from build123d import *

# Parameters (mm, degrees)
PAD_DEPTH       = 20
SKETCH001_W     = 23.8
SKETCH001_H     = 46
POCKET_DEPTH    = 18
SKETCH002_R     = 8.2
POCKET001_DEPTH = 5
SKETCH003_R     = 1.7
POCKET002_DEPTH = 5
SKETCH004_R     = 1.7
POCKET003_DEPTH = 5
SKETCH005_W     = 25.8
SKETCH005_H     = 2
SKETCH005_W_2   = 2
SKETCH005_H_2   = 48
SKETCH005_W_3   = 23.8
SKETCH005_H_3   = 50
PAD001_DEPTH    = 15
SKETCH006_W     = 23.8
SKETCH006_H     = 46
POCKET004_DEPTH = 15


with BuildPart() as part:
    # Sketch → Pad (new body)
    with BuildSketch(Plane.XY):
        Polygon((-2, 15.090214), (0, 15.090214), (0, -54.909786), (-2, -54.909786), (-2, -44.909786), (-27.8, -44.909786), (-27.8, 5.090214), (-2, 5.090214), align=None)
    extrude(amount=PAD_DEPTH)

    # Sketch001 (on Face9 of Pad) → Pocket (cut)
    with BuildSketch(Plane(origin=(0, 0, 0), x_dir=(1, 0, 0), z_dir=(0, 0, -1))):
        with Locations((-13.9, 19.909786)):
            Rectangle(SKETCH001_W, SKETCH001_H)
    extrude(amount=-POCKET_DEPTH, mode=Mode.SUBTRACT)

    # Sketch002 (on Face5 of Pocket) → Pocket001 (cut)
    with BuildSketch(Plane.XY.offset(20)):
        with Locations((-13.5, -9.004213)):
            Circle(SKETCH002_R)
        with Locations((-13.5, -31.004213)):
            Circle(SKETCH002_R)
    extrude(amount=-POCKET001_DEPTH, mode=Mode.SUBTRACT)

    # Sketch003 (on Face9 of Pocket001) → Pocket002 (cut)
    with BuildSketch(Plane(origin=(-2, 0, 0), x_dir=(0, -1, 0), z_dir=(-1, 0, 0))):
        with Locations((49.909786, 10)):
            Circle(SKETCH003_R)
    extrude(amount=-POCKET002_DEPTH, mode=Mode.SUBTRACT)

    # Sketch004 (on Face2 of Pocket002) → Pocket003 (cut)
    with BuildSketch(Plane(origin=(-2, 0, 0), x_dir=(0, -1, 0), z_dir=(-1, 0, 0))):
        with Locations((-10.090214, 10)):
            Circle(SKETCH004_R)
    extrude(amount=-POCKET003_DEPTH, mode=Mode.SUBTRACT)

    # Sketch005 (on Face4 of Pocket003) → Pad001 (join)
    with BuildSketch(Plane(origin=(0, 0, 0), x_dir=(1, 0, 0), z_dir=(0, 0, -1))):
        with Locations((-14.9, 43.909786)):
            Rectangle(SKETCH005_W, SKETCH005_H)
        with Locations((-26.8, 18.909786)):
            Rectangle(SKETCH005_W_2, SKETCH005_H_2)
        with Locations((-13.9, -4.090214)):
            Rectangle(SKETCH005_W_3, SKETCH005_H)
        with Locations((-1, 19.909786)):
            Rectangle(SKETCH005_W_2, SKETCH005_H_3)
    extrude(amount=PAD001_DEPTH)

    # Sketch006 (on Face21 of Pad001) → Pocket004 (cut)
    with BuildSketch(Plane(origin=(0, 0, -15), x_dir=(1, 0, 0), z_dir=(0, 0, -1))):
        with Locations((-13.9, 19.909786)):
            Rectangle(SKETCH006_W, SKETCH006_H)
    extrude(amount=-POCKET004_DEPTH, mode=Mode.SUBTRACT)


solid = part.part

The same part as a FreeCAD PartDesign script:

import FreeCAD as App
import Part
import Sketcher
from FreeCAD import Vector
Q = App.Units.Quantity

doc = App.newDocument("Part")
body = doc.addObject("PartDesign::Body", "Body")

# Sketch on XY plane
sketch1 = body.newObject("Sketcher::SketchObject", "Sketch")
sketch1.AttachmentSupport = (doc.getObject("XY_Plane"), [""])
sketch1.MapMode = "FlatFace"
sketch1.addGeometry(Part.LineSegment(Vector(0, 15.1, 0), Vector(-2, 15.1, 0)), False)
sketch1.addGeometry(Part.LineSegment(Vector(-2, 15.1, 0), Vector(-2, 5.1, 0)), False)
sketch1.addGeometry(Part.LineSegment(Vector(-2, 5.1, 0), Vector(-27.8, 5.1, 0)), False)
sketch1.addGeometry(Part.LineSegment(Vector(-27.8, 5.1, 0), Vector(-27.8, -44.9, 0)), False)
sketch1.addGeometry(Part.LineSegment(Vector(-27.8, -44.9, 0), Vector(-2, -44.9, 0)), False)
sketch1.addGeometry(Part.LineSegment(Vector(-2, -44.9, 0), Vector(-2, -54.9, 0)), False)
sketch1.addGeometry(Part.LineSegment(Vector(-2, -54.9, 0), Vector(0, -54.9, 0)), False)
sketch1.addGeometry(Part.LineSegment(Vector(0, -54.9, 0), Vector(0, 15.1, 0)), False)
sketch1.addConstraint(Sketcher.Constraint("Coincident", 0, 2, 1, 1))
sketch1.addConstraint(Sketcher.Constraint("Coincident", 1, 2, 2, 1))
sketch1.addConstraint(Sketcher.Constraint("Coincident", 2, 2, 3, 1))
sketch1.addConstraint(Sketcher.Constraint("Coincident", 3, 2, 4, 1))
sketch1.addConstraint(Sketcher.Constraint("Coincident", 4, 2, 5, 1))
sketch1.addConstraint(Sketcher.Constraint("Coincident", 5, 2, 6, 1))
sketch1.addConstraint(Sketcher.Constraint("Coincident", 6, 2, 7, 1))
sketch1.addConstraint(Sketcher.Constraint("Coincident", 7, 2, 0, 1))
sketch1.addConstraint(Sketcher.Constraint("Horizontal", 0))
sketch1.addConstraint(Sketcher.Constraint("Vertical", 1))
sketch1.addConstraint(Sketcher.Constraint("Horizontal", 2))
sketch1.addConstraint(Sketcher.Constraint("Vertical", 3))
sketch1.addConstraint(Sketcher.Constraint("Horizontal", 4))
sketch1.addConstraint(Sketcher.Constraint("Vertical", 5))
sketch1.addConstraint(Sketcher.Constraint("Horizontal", 6))
sketch1.addConstraint(Sketcher.Constraint("Vertical", 7))
sketch1.addConstraint(Sketcher.Constraint("PointOnObject", 6, 2, -2))
sketch1.addConstraint(Sketcher.Constraint("Vertical", 1, 2, 4, 2))
sketch1.addConstraint(Sketcher.Constraint("Equal", 1, 5))
sketch1.addConstraint(Sketcher.Constraint("DistanceX", 0, 2, 0, 1, Q("2 mm")))
sketch1.addConstraint(Sketcher.Constraint("DistanceY", 1, 2, 1, 1, Q("10 mm")))
sketch1.addConstraint(Sketcher.Constraint("DistanceY", 3, 2, 3, 1, Q("50 mm")))
sketch1.addConstraint(Sketcher.Constraint("DistanceX", 2, 2, 2, 1, Q("25.8 mm")))
sketch1.addConstraint(Sketcher.Constraint("DistanceY", -1, 1, 0, 2, Q("15.090214 mm")))
pad1 = body.newObject("PartDesign::Pad", "Pad")
pad1.Profile = sketch1
pad1.Length = 20

# Sketch on XY plane
sketch2 = body.newObject("Sketcher::SketchObject", "Sketch001")
sketch2.AttachmentSupport = (doc.getObject("XY_Plane"), [""])
sketch2.MapMode = "FlatFace"
sketch2.addGeometry(Part.LineSegment(Vector(-26, -43, 0), Vector(-26, 3, 0)), False)
sketch2.addGeometry(Part.LineSegment(Vector(-26, 3, 0), Vector(-2, 3, 0)), False)
sketch2.addGeometry(Part.LineSegment(Vector(-2, 3, 0), Vector(-2, -43, 0)), False)
sketch2.addGeometry(Part.LineSegment(Vector(-2, -43, 0), Vector(-26, -43, 0)), False)
sketch2.addConstraint(Sketcher.Constraint("Coincident", 0, 2, 1, 1))
sketch2.addConstraint(Sketcher.Constraint("Coincident", 1, 2, 2, 1))
sketch2.addConstraint(Sketcher.Constraint("Coincident", 2, 2, 3, 1))
sketch2.addConstraint(Sketcher.Constraint("Coincident", 3, 2, 0, 1))
sketch2.addConstraint(Sketcher.Constraint("Vertical", 0))
sketch2.addConstraint(Sketcher.Constraint("Horizontal", 1))
sketch2.addConstraint(Sketcher.Constraint("Vertical", 2))
sketch2.addConstraint(Sketcher.Constraint("Horizontal", 3))
sketch2.addConstraint(Sketcher.Constraint("DistanceY", 0, 1, 0, 2, Q("46 mm")))
sketch2.addConstraint(Sketcher.Constraint("DistanceX", 1, 1, 1, 2, Q("23.8 mm")))
sketch2.addConstraint(Sketcher.Constraint("DistanceX", 1, 2, -1, 1, Q("2 mm")))
sketch2.addConstraint(Sketcher.Constraint("DistanceY", -1, 1, 0, 2, Q("3.090214 mm")))
pocket1 = body.newObject("PartDesign::Pocket", "Pocket")
pocket1.Profile = sketch2
pocket1.Length = 18
pocket1.Reversed = True

# Sketch on XY plane
sketch3 = body.newObject("Sketcher::SketchObject", "Sketch002")
sketch3.AttachmentSupport = (doc.getObject("XY_Plane"), [""])
sketch3.MapMode = "FlatFace"
sketch3.AttachmentOffset = App.Placement(Vector(0, 0, 20), App.Rotation())
sketch3.addGeometry(Part.Circle(Vector(-14, -9, 0), Vector(0, 0, 1), 8), False)
sketch3.addGeometry(Part.Circle(Vector(-14, -31, 0), Vector(0, 0, 1), 8), False)
sketch3.addConstraint(Sketcher.Constraint("Equal", 0, 1))
sketch3.addConstraint(Sketcher.Constraint("Vertical", 0, 3, 1, 3))
sketch3.addConstraint(Sketcher.Constraint("Diameter", 0, Q("16.4 mm")))
sketch3.addConstraint(Sketcher.Constraint("DistanceY", 1, 3, 0, 3, Q("22 mm")))
sketch3.addConstraint(Sketcher.Constraint("DistanceX", 0, 3, -1, 1, Q("13.5 mm")))
sketch3.addConstraint(Sketcher.Constraint("DistanceY", 0, 3, -1, 1, Q("9.004213 mm")))
pocket2 = body.newObject("PartDesign::Pocket", "Pocket001")
pocket2.Profile = sketch3
pocket2.Length = 5

# Sketch on YZ plane
sketch4 = body.newObject("Sketcher::SketchObject", "Sketch003")
sketch4.AttachmentSupport = (doc.getObject("YZ_Plane"), [""])
sketch4.MapMode = "FlatFace"
sketch4.AttachmentOffset = App.Placement(Vector(0, 0, -2), App.Rotation())
sketch4.addGeometry(Part.Circle(Vector(-49.9, 10, 0), Vector(0, 0, 1), 1.7), False)
sketch4.addConstraint(Sketcher.Constraint("Diameter", 0, Q("3.4 mm")))
sketch4.addConstraint(Sketcher.Constraint("DistanceY", -1, 1, 0, 3, Q("10 mm")))
sketch4.addConstraint(Sketcher.Constraint("DistanceX", 0, 3, -1, 1, Q("49.909786 mm")))
pocket3 = body.newObject("PartDesign::Pocket", "Pocket002")
pocket3.Profile = sketch4
pocket3.Length = 5
pocket3.Reversed = True

# Sketch on YZ plane
sketch5 = body.newObject("Sketcher::SketchObject", "Sketch004")
sketch5.AttachmentSupport = (doc.getObject("YZ_Plane"), [""])
sketch5.MapMode = "FlatFace"
sketch5.AttachmentOffset = App.Placement(Vector(0, 0, -2), App.Rotation())
sketch5.addGeometry(Part.Circle(Vector(10.1, 10, 0), Vector(0, 0, 1), 1.7), False)
sketch5.addConstraint(Sketcher.Constraint("Diameter", 0, Q("3.4 mm")))
sketch5.addConstraint(Sketcher.Constraint("DistanceY", -1, 1, 0, 3, Q("10 mm")))
sketch5.addConstraint(Sketcher.Constraint("DistanceX", -1, 1, 0, 3, Q("10.090214 mm")))
pocket4 = body.newObject("PartDesign::Pocket", "Pocket003")
pocket4.Profile = sketch5
pocket4.Length = 5
pocket4.Reversed = True

# Sketch on XY plane
sketch6 = body.newObject("Sketcher::SketchObject", "Sketch005")
sketch6.AttachmentSupport = (doc.getObject("XY_Plane"), [""])
sketch6.MapMode = "FlatFace"
sketch6.addGeometry(Part.LineSegment(Vector(-28, -45, 0), Vector(-28, 5, 0)), False)
sketch6.addGeometry(Part.LineSegment(Vector(-28, 5, 0), Vector(0, 5, 0)), False)
sketch6.addGeometry(Part.LineSegment(Vector(0, 5, 0), Vector(0, -45, 0)), False)
sketch6.addGeometry(Part.LineSegment(Vector(0, -45, 0), Vector(-28, -45, 0)), False)
sketch6.addGeometry(Part.LineSegment(Vector(-2, 3, 0), Vector(-26, 3, 0)), False)
sketch6.addGeometry(Part.LineSegment(Vector(-26, 3, 0), Vector(-26, -43, 0)), False)
sketch6.addGeometry(Part.LineSegment(Vector(-26, -43, 0), Vector(-2, -43, 0)), False)
sketch6.addGeometry(Part.LineSegment(Vector(-2, -43, 0), Vector(-2, 3, 0)), False)
sketch6.addConstraint(Sketcher.Constraint("Coincident", 0, 2, 1, 1))
sketch6.addConstraint(Sketcher.Constraint("Coincident", 1, 2, 2, 1))
sketch6.addConstraint(Sketcher.Constraint("Coincident", 2, 2, 3, 1))
sketch6.addConstraint(Sketcher.Constraint("Coincident", 3, 2, 0, 1))
sketch6.addConstraint(Sketcher.Constraint("Coincident", 4, 2, 5, 1))
sketch6.addConstraint(Sketcher.Constraint("Coincident", 5, 2, 6, 1))
sketch6.addConstraint(Sketcher.Constraint("Coincident", 6, 2, 7, 1))
sketch6.addConstraint(Sketcher.Constraint("Coincident", 7, 2, 4, 1))
sketch6.addConstraint(Sketcher.Constraint("Vertical", 0))
sketch6.addConstraint(Sketcher.Constraint("Horizontal", 1))
sketch6.addConstraint(Sketcher.Constraint("Vertical", 2))
sketch6.addConstraint(Sketcher.Constraint("Horizontal", 3))
sketch6.addConstraint(Sketcher.Constraint("Horizontal", 4))
sketch6.addConstraint(Sketcher.Constraint("Vertical", 5))
sketch6.addConstraint(Sketcher.Constraint("Horizontal", 6))
sketch6.addConstraint(Sketcher.Constraint("Vertical", 7))
sketch6.addConstraint(Sketcher.Constraint("PointOnObject", 1, 2, -2))
sketch6.addConstraint(Sketcher.Constraint("DistanceY", 0, 1, 0, 2, Q("50 mm")))
sketch6.addConstraint(Sketcher.Constraint("DistanceY", 5, 2, 5, 1, Q("46 mm")))
sketch6.addConstraint(Sketcher.Constraint("DistanceX", 1, 1, 1, 2, Q("27.8 mm")))
sketch6.addConstraint(Sketcher.Constraint("DistanceX", 4, 2, 4, 1, Q("23.8 mm")))
sketch6.addConstraint(Sketcher.Constraint("DistanceX", 6, 2, -1, 1, Q("2 mm")))
sketch6.addConstraint(Sketcher.Constraint("DistanceY", 4, 2, 0, 2, Q("2 mm")))
sketch6.addConstraint(Sketcher.Constraint("DistanceY", -1, 1, 0, 2, Q("5.090214 mm")))
pad2 = body.newObject("PartDesign::Pad", "Pad001")
pad2.Profile = sketch6
pad2.Length = 15
pad2.Reversed = True

# Sketch on XY plane
sketch7 = body.newObject("Sketcher::SketchObject", "Sketch006")
sketch7.AttachmentSupport = (doc.getObject("XY_Plane"), [""])
sketch7.MapMode = "FlatFace"
sketch7.AttachmentOffset = App.Placement(Vector(0, 0, -15), App.Rotation())
sketch7.addGeometry(Part.LineSegment(Vector(-26, -43, 0), Vector(-26, 3, 0)), False)
sketch7.addGeometry(Part.LineSegment(Vector(-26, 3, 0), Vector(-2, 3, 0)), False)
sketch7.addGeometry(Part.LineSegment(Vector(-2, 3, 0), Vector(-2, -43, 0)), False)
sketch7.addGeometry(Part.LineSegment(Vector(-2, -43, 0), Vector(-26, -43, 0)), False)
sketch7.addConstraint(Sketcher.Constraint("Coincident", 0, 2, 1, 1))
sketch7.addConstraint(Sketcher.Constraint("Coincident", 1, 2, 2, 1))
sketch7.addConstraint(Sketcher.Constraint("Coincident", 2, 2, 3, 1))
sketch7.addConstraint(Sketcher.Constraint("Coincident", 3, 2, 0, 1))
sketch7.addConstraint(Sketcher.Constraint("Vertical", 0))
sketch7.addConstraint(Sketcher.Constraint("Horizontal", 1))
sketch7.addConstraint(Sketcher.Constraint("Vertical", 2))
sketch7.addConstraint(Sketcher.Constraint("Horizontal", 3))
sketch7.addConstraint(Sketcher.Constraint("DistanceY", 0, 1, 0, 2, Q("46 mm")))
sketch7.addConstraint(Sketcher.Constraint("DistanceX", 1, 1, 1, 2, Q("23.8 mm")))
sketch7.addConstraint(Sketcher.Constraint("DistanceX", 1, 2, -1, 1, Q("2 mm")))
sketch7.addConstraint(Sketcher.Constraint("DistanceY", -1, 1, 0, 2, Q("3.090214 mm")))
pocket5 = body.newObject("PartDesign::Pocket", "Pocket004")
pocket5.Profile = sketch7
pocket5.Length = 15
pocket5.Reversed = True

doc.recompute()
